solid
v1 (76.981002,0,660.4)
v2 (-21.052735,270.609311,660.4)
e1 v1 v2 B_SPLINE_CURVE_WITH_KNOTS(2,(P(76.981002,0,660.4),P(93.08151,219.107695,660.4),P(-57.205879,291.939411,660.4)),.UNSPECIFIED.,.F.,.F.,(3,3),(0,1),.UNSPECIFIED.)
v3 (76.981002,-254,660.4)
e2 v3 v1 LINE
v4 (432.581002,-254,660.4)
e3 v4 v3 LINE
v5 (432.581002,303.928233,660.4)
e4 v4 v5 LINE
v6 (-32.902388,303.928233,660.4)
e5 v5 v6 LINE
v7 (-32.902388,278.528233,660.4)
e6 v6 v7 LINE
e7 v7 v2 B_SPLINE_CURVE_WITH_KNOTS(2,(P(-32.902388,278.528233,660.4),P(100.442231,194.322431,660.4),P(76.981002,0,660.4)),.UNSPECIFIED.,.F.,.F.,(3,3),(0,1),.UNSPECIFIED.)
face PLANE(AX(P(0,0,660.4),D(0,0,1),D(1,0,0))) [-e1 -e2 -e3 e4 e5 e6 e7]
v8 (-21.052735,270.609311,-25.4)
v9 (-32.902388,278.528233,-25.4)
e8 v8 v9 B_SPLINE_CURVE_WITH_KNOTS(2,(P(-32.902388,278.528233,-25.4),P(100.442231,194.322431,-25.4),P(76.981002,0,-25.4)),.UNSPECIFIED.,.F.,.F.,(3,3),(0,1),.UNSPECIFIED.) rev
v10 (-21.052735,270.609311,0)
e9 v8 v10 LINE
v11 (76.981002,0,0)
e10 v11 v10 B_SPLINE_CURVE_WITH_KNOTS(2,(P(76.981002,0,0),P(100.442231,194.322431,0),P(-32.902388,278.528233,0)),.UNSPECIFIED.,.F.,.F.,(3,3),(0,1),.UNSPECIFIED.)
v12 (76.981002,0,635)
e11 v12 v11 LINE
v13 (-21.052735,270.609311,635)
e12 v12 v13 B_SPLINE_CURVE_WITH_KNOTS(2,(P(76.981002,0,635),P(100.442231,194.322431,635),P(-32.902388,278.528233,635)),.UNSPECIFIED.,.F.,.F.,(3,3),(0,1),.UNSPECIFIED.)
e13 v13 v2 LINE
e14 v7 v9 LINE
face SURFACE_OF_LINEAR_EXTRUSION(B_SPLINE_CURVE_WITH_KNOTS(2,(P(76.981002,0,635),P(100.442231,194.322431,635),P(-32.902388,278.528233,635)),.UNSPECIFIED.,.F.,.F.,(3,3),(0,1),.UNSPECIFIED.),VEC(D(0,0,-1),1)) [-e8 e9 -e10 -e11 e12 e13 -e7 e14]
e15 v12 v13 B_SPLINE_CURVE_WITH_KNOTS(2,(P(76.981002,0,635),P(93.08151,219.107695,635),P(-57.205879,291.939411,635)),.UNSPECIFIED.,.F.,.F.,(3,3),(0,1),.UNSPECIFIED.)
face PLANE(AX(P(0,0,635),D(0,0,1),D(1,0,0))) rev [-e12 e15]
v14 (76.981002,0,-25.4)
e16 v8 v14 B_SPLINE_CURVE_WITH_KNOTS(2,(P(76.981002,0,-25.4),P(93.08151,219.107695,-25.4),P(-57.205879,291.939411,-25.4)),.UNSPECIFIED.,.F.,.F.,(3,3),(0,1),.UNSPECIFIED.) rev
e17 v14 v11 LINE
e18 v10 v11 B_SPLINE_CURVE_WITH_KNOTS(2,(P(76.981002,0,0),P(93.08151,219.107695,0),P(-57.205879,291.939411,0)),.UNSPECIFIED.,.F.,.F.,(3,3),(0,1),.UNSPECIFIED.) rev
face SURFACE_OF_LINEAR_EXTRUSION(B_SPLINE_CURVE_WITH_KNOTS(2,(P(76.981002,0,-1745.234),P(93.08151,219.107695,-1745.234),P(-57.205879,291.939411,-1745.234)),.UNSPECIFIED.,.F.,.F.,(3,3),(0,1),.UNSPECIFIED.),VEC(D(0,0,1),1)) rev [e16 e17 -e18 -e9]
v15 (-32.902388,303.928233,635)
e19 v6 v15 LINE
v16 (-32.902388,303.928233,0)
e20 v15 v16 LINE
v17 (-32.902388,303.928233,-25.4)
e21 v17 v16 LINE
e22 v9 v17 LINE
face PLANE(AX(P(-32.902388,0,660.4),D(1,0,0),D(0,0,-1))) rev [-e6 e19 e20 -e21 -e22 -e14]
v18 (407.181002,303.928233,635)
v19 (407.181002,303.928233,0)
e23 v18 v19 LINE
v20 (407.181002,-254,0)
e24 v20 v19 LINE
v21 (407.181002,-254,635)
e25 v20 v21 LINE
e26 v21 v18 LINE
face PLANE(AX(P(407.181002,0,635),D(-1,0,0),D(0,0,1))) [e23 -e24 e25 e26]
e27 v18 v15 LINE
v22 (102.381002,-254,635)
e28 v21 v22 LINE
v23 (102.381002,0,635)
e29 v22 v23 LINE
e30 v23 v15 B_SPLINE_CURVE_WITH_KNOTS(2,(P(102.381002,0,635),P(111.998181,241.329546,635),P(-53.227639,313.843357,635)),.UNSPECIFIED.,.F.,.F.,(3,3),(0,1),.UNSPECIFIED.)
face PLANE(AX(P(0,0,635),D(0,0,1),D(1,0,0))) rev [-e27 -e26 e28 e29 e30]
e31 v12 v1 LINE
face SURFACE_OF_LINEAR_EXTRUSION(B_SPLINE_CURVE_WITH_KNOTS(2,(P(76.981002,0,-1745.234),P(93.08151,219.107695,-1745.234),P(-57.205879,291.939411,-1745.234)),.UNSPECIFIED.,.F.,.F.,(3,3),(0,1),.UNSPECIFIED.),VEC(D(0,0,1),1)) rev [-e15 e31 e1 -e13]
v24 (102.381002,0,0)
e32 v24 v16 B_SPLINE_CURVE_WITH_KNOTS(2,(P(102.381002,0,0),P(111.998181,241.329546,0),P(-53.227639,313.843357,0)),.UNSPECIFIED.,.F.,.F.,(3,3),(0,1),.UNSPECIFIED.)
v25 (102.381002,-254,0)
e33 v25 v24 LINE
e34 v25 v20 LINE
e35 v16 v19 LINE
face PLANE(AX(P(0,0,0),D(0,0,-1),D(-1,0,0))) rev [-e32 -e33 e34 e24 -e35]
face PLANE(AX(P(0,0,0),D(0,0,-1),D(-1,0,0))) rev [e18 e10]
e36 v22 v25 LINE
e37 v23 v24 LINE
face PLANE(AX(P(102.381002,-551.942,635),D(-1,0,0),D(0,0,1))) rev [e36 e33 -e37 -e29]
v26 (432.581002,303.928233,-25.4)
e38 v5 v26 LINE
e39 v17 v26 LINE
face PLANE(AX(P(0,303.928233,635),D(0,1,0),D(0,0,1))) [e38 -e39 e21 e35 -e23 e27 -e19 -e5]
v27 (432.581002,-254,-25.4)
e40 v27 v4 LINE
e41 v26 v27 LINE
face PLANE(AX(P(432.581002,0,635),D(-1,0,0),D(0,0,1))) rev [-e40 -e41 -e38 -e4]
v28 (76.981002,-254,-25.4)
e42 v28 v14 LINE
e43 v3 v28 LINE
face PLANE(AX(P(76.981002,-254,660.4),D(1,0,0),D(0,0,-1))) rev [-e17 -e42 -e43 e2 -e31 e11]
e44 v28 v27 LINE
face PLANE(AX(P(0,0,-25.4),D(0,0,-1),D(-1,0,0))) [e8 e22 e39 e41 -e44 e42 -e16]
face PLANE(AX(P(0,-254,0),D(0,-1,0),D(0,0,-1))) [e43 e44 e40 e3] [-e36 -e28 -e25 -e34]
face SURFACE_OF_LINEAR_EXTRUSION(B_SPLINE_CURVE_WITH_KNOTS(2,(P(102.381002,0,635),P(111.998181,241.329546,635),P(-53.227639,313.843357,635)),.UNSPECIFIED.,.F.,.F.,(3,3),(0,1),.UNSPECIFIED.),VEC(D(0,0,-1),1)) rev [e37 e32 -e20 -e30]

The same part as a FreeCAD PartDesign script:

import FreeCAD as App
import Part
import Sketcher
Q = App.Units.Quantity

doc = App.newDocument("Part")
body = doc.addObject("PartDesign::Body", "Body")

sketch1 = body.newObject("Sketcher::SketchObject", "Sketch")
sketch1.AttachmentSupport = (doc.getObject("XY_Plane"), [""])
sketch1.MapMode = "FlatFace"
sketch1.addGeometry([
    Part.LineSegment(App.Vector(407.181002, 303.928233, 0), App.Vector(407.181002, 0, 0)),
    Part.LineSegment(App.Vector(407.181002, 0, 0), App.Vector(432.581002, 0, 0)),
    Part.LineSegment(App.Vector(432.581002, 0, 0), App.Vector(432.581002, 303.928233, 0)),
    Part.LineSegment(App.Vector(432.581002, 303.928233, 0), App.Vector(407.181002, 303.928233, 0)),
], False)
sketch1.addConstraint([
    Sketcher.Constraint("Coincident", 0, 2, 1, 1),
    Sketcher.Constraint("Coincident", 1, 2, 2, 1),
    Sketcher.Constraint("Coincident", 2, 2, 3, 1),
    Sketcher.Constraint("Coincident", 3, 2, 0, 1),
    Sketcher.Constraint("Vertical", 0),
    Sketcher.Constraint("Horizontal", 1),
    Sketcher.Constraint("Vertical", 2),
    Sketcher.Constraint("Horizontal", 3),
    Sketcher.Constraint("PointOnObject", 0, 2, -1),
    Sketcher.Constraint("DistanceX", 1, 1, 1, 2, Q("1 in")),
    Sketcher.Constraint("DistanceX", -1, 1, 0, 2, 407.181002),
    Sketcher.Constraint("DistanceY", 0, 2, 0, 1, 303.928233),
])
pad1 = body.newObject("PartDesign::Pad", "Pad")
pad1.Profile = sketch1
pad1.Length = Q("25 in")
body2 = doc.addObject("PartDesign::Body", "Body001")

sketch2 = body2.newObject("Sketcher::SketchObject", "Sketch001")
sketch2.AttachmentSupport = (doc.getObject("XY_Plane001"), [""])
sketch2.MapMode = "FlatFace"
sketch2.addGeometry([
    Part.LineSegment(App.Vector(-32.902388, 303.928233, 0), App.Vector(-32.902388, 278.528233, 0)),
    Part.BSplineCurve([App.Vector(0, 254, 0), App.Vector(-15.045108, 267.251538, 0), App.Vector(-32.902388, 278.528233, 0)], [3, 3], [0.866081735, 1], False, 2, [1, 1, 1], False),
    Part.BSplineCurve([App.Vector(76.981002, 0, 0), App.Vector(97.300344, 168.299108, 0), App.Vector(0, 254, 0)], [3, 3], [0, 0.866081735], False, 2, [1, 1, 1], False),
    Part.LineSegment(App.Vector(76.981002, 0, 0), App.Vector(102.381002, 0, 0)),
    Part.BSplineCurve([App.Vector(102.381002, 0, 0), App.Vector(111.386036, 225.968646, 0), App.Vector(-32.902388, 303.928233, 0)], [3, 3], [0, 0.936348865], False, 2, [1, 1, 1], False),
], False)
sketch2.addConstraint([
    Sketcher.Constraint("Block", 1),
    Sketcher.Constraint("Block", 2),
    Sketcher.Constraint("Block", 4),
    Sketcher.Constraint("Coincident", 0, 2, 1, 2),
    Sketcher.Constraint("Coincident", 2, 1, 3, 1),
    Sketcher.Constraint("Coincident", 3, 2, 4, 1),
    Sketcher.Constraint("Coincident", 4, 2, 0, 1),
])
pad2 = body2.newObject("PartDesign::Pad", "Pad001")
pad2.Profile = sketch2
pad2.Length = Q("25 in")
body.AllowCompound = True
doc.recompute()

boolean = body.newObject("PartDesign::Boolean", "Boolean")
boolean.Type = "Fuse"
boolean.addObjects([body2])

sketch3 = body.newObject("Sketcher::SketchObject", "Sketch002")
sketch3.AttachmentSupport = (doc.getObject("XY_Plane"), [""])
sketch3.MapMode = "FlatFace"
sketch3.AttachmentOffset = App.Placement(App.Vector(0, 0, 25 * 25.4), App.Rotation())
sketch3.addGeometry([
    Part.LineSegment(App.Vector(-32.902388, 303.928233, 0), App.Vector(-32.902388, 0, 0)),
    Part.LineSegment(App.Vector(-32.902388, 0, 0), App.Vector(432.581002, 0, 0)),
    Part.LineSegment(App.Vector(432.581002, 0, 0), App.Vector(432.581002, 303.928233, 0)),
    Part.LineSegment(App.Vector(432.581002, 303.928233, 0), App.Vector(-32.902388, 303.928233, 0)),
], False)
sketch3.addConstraint([
    Sketcher.Constraint("Coincident", 0, 2, 1, 1),
    Sketcher.Constraint("Coincident", 1, 2, 2, 1),
    Sketcher.Constraint("Coincident", 2, 2, 3, 1),
    Sketcher.Constraint("Coincident", 3, 2, 0, 1),
    Sketcher.Constraint("Vertical", 0),
    Sketcher.Constraint("Horizontal", 1),
    Sketcher.Constraint("Vertical", 2),
    Sketcher.Constraint("Horizontal", 3),
    Sketcher.Constraint("PointOnObject", 0, 2, -1),
    Sketcher.Constraint("DistanceX", 1, 1, 1, 2, 465.48339),
    Sketcher.Constraint("DistanceX", -1, 1, 1, 2, 432.581002),
    Sketcher.Constraint("DistanceY", 0, 2, 0, 1, 303.928233),
])
pad3 = body.newObject("PartDesign::Pad", "Pad002")
pad3.Profile = sketch3
pad3.Length = Q("1 in")

sketch4 = body.newObject("Sketcher::SketchObject", "Sketch003")
sketch4.AttachmentSupport = (doc.getObject("XY_Plane"), [""])
sketch4.MapMode = "FlatFace"
sketch4.addGeometry([
    Part.LineSegment(App.Vector(432.581002, 303.928233, 0), App.Vector(432.581002, 0, 0)),
    Part.LineSegment(App.Vector(432.581002, 0, 0), App.Vector(-32.902388, 0, 0)),
    Part.LineSegment(App.Vector(-32.902388, 0, 0), App.Vector(-32.902388, 303.928233, 0)),
    Part.LineSegment(App.Vector(-32.902388, 303.928233, 0), App.Vector(432.581002, 303.928233, 0)),
], False)
sketch4.addConstraint([
    Sketcher.Constraint("Coincident", 0, 2, 1, 1),
    Sketcher.Constraint("Coincident", 1, 2, 2, 1),
    Sketcher.Constraint("Coincident", 2, 2, 3, 1),
    Sketcher.Constraint("Coincident", 3, 2, 0, 1),
    Sketcher.Constraint("Vertical", 0),
    Sketcher.Constraint("Horizontal", 1),
    Sketcher.Constraint("Vertical", 2),
    Sketcher.Constraint("Horizontal", 3),
    Sketcher.Constraint("PointOnObject", 0, 2, -1),
    Sketcher.Constraint("DistanceX", 1, 2, 1, 1, 465.48339),
    Sketcher.Constraint("DistanceX", -1, 1, 0, 2, 432.581002),
    Sketcher.Constraint("DistanceY", 0, 2, 0, 1, 303.928233),
])
pad4 = body.newObject("PartDesign::Pad", "Pad003")
pad4.Profile = sketch4
pad4.Length = Q("1 in")
pad4.Reversed = True

sketch5 = body.newObject("Sketcher::SketchObject", "Sketch004")
sketch5.AttachmentSupport = (doc.getObject("XY_Plane"), [""])
sketch5.MapMode = "FlatFace"
sketch5.AttachmentOffset = App.Placement(App.Vector(0, 0, 25 * 25.4), App.Rotation())
sketch5.addGeometry([
    Part.LineSegment(App.Vector(-32.902388, 0, 0), App.Vector(-32.902388, 278.528233, 0)),
    Part.BSplineCurve([App.Vector(-32.902388, 278.528233, 0), App.Vector(-26.814118, 274.68355, 0), App.Vector(-21.052735, 270.609311, 0)], [3, 3], [0, 0.045658164], False, 2, [1, 1, 1], False),
    Part.BSplineCurve([App.Vector(76.981002, 0, 0), App.Vector(90.995301, 190.717014, 0), App.Vector(-21.052735, 270.609311, 0)], [3, 3], [0, 0.870425908], False, 2, [1, 1, 1], False),
    Part.LineSegment(App.Vector(76.981002, 0, 0), App.Vector(-32.902388, 0, 0)),
], False)
sketch5.addConstraint([
    Sketcher.Constraint("Block", 1),
    Sketcher.Constraint("Block", 2),
    Sketcher.Constraint("Coincident", 0, 2, 1, 1),
    Sketcher.Constraint("Coincident", 2, 1, 3, 1),
    Sketcher.Constraint("Coincident", 3, 2, 0, 1),
    Sketcher.Constraint("Vertical", 0),
    Sketcher.Constraint("Horizontal", 3),
])
pocket1 = body.newObject("PartDesign::Pocket", "Pocket")
pocket1.Profile = sketch5
pocket1.Type = "ThroughAll"
pocket1.Midplane = True

sketch6 = body.newObject("Sketcher::SketchObject", "Sketch005")
sketch6.AttachmentSupport = (doc.getObject("XZ_Plane"), [""])
sketch6.MapMode = "FlatFace"
sketch6.addGeometry([
    Part.LineSegment(App.Vector(76.981002, 660.4, 0), App.Vector(76.981002, -25.4, 0)),
    Part.LineSegment(App.Vector(76.981002, -25.4, 0), App.Vector(432.581002, -25.4, 0)),
    Part.LineSegment(App.Vector(432.581002, -25.4, 0), App.Vector(432.581002, 660.4, 0)),
    Part.LineSegment(App.Vector(432.581002, 660.4, 0), App.Vector(76.981002, 660.4, 0)),
], False)
sketch6.addConstraint([
    Sketcher.Constraint("Coincident", 0, 2, 1, 1),
    Sketcher.Constraint("Coincident", 1, 2, 2, 1),
    Sketcher.Constraint("Coincident", 2, 2, 3, 1),
    Sketcher.Constraint("Coincident", 3, 2, 0, 1),
    Sketcher.Constraint("Vertical", 0),
    Sketcher.Constraint("Horizontal", 1),
    Sketcher.Constraint("Vertical", 2),
    Sketcher.Constraint("Horizontal", 3),
    Sketcher.Constraint("DistanceX", 1, 1, 1, 2, Q("14 in")),
    Sketcher.Constraint("DistanceY", 0, 2, 0, 1, Q("27 in")),
    Sketcher.Constraint("DistanceY", 0, 2, -1, 1, Q("1 in")),
    Sketcher.Constraint("DistanceX", -1, 1, 0, 2, 76.981002),
])
pad5 = body.newObject("PartDesign::Pad", "Pad004")
pad5.Profile = sketch6
pad5.Length = Q("10 in")

sketch7 = body.newObject("Sketcher::SketchObject", "Sketch006")
sketch7.AttachmentSupport = (doc.getObject("XZ_Plane"), [""])
sketch7.MapMode = "FlatFace"
sketch7.addGeometry([
    Part.LineSegment(App.Vector(102.381002, 0, 0), App.Vector(102.381002, 635, 0)),
    Part.LineSegment(App.Vector(102.381002, 635, 0), App.Vector(407.181002, 635, 0)),
    Part.LineSegment(App.Vector(407.181002, 635, 0), App.Vector(407.181002, 0, 0)),
    Part.LineSegment(App.Vector(407.181002, 0, 0), App.Vector(102.381002, 0, 0)),
], False)
sketch7.addConstraint([
    Sketcher.Constraint("Coincident", 0, 2, 1, 1),
    Sketcher.Constraint("Coincident", 1, 2, 2, 1),
    Sketcher.Constraint("Coincident", 2, 2, 3, 1),
    Sketcher.Constraint("Coincident", 3, 2, 0, 1),
    Sketcher.Constraint("Vertical", 0),
    Sketcher.Constraint("Horizontal", 1),
    Sketcher.Constraint("Vertical", 2),
    Sketcher.Constraint("Horizontal", 3),
    Sketcher.Constraint("PointOnObject", 2, 2, -1),
    Sketcher.Constraint("DistanceX", 1, 1, 1, 2, Q("12 in")),
    Sketcher.Constraint("DistanceY", 0, 1, 0, 2, Q("25 in")),
    Sketcher.Constraint("DistanceX", -1, 1, 0, 2, 102.381002),
])
pocket2 = body.newObject("PartDesign::Pocket", "Pocket001")
pocket2.Profile = sketch7
pocket2.Length = Q("21.73 in")
pocket2.Reversed = True

doc.recompute()
